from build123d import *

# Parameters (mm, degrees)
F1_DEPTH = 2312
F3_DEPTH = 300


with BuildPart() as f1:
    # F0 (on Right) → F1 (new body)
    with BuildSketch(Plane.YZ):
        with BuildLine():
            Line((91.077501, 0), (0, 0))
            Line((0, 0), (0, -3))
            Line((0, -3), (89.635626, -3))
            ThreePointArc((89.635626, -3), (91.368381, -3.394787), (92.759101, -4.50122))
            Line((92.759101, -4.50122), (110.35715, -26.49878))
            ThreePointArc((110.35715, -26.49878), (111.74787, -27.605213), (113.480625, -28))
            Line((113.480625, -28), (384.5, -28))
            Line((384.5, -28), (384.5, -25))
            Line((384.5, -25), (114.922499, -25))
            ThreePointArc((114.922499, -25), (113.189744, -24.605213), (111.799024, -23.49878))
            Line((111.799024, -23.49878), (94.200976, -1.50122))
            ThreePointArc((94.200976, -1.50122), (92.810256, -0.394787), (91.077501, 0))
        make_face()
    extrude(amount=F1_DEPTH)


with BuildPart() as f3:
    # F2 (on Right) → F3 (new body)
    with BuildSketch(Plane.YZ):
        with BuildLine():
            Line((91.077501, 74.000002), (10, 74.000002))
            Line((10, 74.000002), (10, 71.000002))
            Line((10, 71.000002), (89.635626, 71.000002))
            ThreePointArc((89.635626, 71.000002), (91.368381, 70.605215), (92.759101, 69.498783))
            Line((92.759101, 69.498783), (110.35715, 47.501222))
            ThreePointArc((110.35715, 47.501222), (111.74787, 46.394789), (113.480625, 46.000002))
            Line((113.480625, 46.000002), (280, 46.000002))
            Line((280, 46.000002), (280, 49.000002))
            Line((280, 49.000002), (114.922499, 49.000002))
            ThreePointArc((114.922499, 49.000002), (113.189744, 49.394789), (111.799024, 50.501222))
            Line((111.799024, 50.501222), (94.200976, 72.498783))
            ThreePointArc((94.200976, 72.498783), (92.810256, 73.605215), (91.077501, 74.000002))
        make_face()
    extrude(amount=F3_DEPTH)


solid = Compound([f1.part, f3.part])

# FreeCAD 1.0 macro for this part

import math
import FreeCAD as App
import Part
import Sketcher

V = App.Vector

doc = App.newDocument("Part")
body = doc.addObject("PartDesign::Body", "Body")

sketch1 = body.newObject("Sketcher::SketchObject", "Sketch")
sketch1.AttachmentSupport = (doc.getObject("YZ_Plane"), [""])
sketch1.MapMode = "FlatFace"
sketch1.addGeometry([
    Part.LineSegment(V(91.1, 0, 0), V(0, 0, 0)),
    Part.LineSegment(V(0, 0, 0), V(0, -3, 0)),
    Part.LineSegment(V(0, -3, 0), V(89.6, -3, 0)),
    Part.ArcOfCircle(Part.Circle(V(89.6, -7, 0), V(0, 0, 1), 4), math.radians(39), math.radians(90)),
    Part.LineSegment(V(92.8, -4.5, 0), V(110.4, -26.5, 0)),
    Part.ArcOfCircle(Part.Circle(V(113.5, -24, 0), V(0, 0, 1), 4), math.radians(-141), math.radians(-90)),
    Part.LineSegment(V(113.5, -28, 0), V(384.5, -28, 0)),
    Part.LineSegment(V(384.5, -28, 0), V(384.5, -25, 0)),
    Part.LineSegment(V(384.5, -25, 0), V(114.9, -25, 0)),
    Part.ArcOfCircle(Part.Circle(V(114.9, -21, 0), V(0, 0, 1), 4), math.radians(-141), math.radians(-90)),
    Part.LineSegment(V(111.8, -23.5, 0), V(94.2, -1.5, 0)),
    Part.ArcOfCircle(Part.Circle(V(91.1, -4, 0), V(0, 0, 1), 4), math.radians(39), math.radians(90)),
], False)
sketch1.addConstraint([
    Sketcher.Constraint("Coincident", 0, 2, 1, 1),
    Sketcher.Constraint("Coincident", 1, 2, 2, 1),
    Sketcher.Constraint("Tangent", 2, 2, 3, 2),
    Sketcher.Constraint("Tangent", 3, 1, 4, 1),
    Sketcher.Constraint("Tangent", 4, 2, 5, 1),
    Sketcher.Constraint("Tangent", 5, 2, 6, 1),
    Sketcher.Constraint("Coincident", 6, 2, 7, 1),
    Sketcher.Constraint("Coincident", 7, 2, 8, 1),
    Sketcher.Constraint("Tangent", 8, 2, 9, 2),
    Sketcher.Constraint("Tangent", 9, 1, 10, 1),
    Sketcher.Constraint("Tangent", 10, 2, 11, 1),
    Sketcher.Constraint("Tangent", 11, 2, 0, 1),
    Sketcher.Constraint("Horizontal", 0),
    Sketcher.Constraint("Vertical", 1),
    Sketcher.Constraint("Horizontal", 2),
    Sketcher.Constraint("Horizontal", 6),
    Sketcher.Constraint("Vertical", 7),
    Sketcher.Constraint("Horizontal", 8),
    Sketcher.Constraint("Coincident", 0, 2, -1, 1),
    Sketcher.Constraint("Equal", 3, 5),
    Sketcher.Constraint("Equal", 5, 9),
    Sketcher.Constraint("Equal", 9, 11),
    Sketcher.Constraint("Parallel", 4, 10),
    Sketcher.Constraint("Equal", 1, 7),
    Sketcher.Constraint("DistanceY", 1, 2, 1, 1, 3.0),
    Sketcher.Constraint("DistanceY", 5, 2, -1, 1, 28.0),
    Sketcher.Constraint("DistanceX", -1, 1, 6, 2, 384.5),
    Sketcher.Constraint("DistanceX", 0, 2, 0, 1, 91.077501),
    Sketcher.Constraint("DistanceX", 8, 2, 8, 1, 269.577501),
    Sketcher.Constraint("Radius", 3, 3.999998),
    Sketcher.Constraint("DistanceX", -1, 1, 3, 1, 92.759101),
])
pad1 = body.newObject("PartDesign::Pad", "Pad")
pad1.Profile = sketch1
pad1.Length = 2312
body2 = doc.addObject("PartDesign::Body", "Body001")

sketch2 = body2.newObject("Sketcher::SketchObject", "Sketch001")
sketch2.AttachmentSupport = (doc.getObject("YZ_Plane001"), [""])
sketch2.MapMode = "FlatFace"
sketch2.addGeometry([
    Part.LineSegment(V(91.1, 74, 0), V(10, 74, 0)),
    Part.LineSegment(V(10, 74, 0), V(10, 71, 0)),
    Part.LineSegment(V(10, 71, 0), V(89.6, 71, 0)),
    Part.ArcOfCircle(Part.Circle(V(89.6, 67, 0), V(0, 0, 1), 4), math.radians(39), math.radians(90)),
    Part.LineSegment(V(92.8, 69.5, 0), V(110.4, 47.5, 0)),
    Part.ArcOfCircle(Part.Circle(V(113.5, 50, 0), V(0, 0, 1), 4), math.radians(-141), math.radians(-90)),
    Part.LineSegment(V(113.5, 46, 0), V(280, 46, 0)),
    Part.LineSegment(V(280, 46, 0), V(280, 49, 0)),
    Part.LineSegment(V(280, 49, 0), V(114.9, 49, 0)),
    Part.ArcOfCircle(Part.Circle(V(114.9, 53, 0), V(0, 0, 1), 4), math.radians(-141), math.radians(-90)),
    Part.LineSegment(V(111.8, 50.5, 0), V(94.2, 72.5, 0)),
    Part.ArcOfCircle(Part.Circle(V(91.1, 70, 0), V(0, 0, 1), 4), math.radians(39), math.radians(90)),
], False)
sketch2.addConstraint([
    Sketcher.Constraint("Coincident", 0, 2, 1, 1),
    Sketcher.Constraint("Coincident", 1, 2, 2, 1),
    Sketcher.Constraint("Tangent", 2, 2, 3, 2),
    Sketcher.Constraint("Tangent", 3, 1, 4, 1),
    Sketcher.Constraint("Tangent", 4, 2, 5, 1),
    Sketcher.Constraint("Tangent", 5, 2, 6, 1),
    Sketcher.Constraint("Coincident", 6, 2, 7, 1),
    Sketcher.Constraint("Coincident", 7, 2, 8, 1),
    Sketcher.Constraint("Tangent", 8, 2, 9, 2),
    Sketcher.Constraint("Tangent", 9, 1, 10, 1),
    Sketcher.Constraint("Tangent", 10, 2, 11, 1),
    Sketcher.Constraint("Tangent", 11, 2, 0, 1),
    Sketcher.Constraint("Horizontal", 0),
    Sketcher.Constraint("Vertical", 1),
    Sketcher.Constraint("Horizontal", 2),
    Sketcher.Constraint("Horizontal", 6),
    Sketcher.Constraint("Vertical", 7),
    Sketcher.Constraint("Horizontal", 8),
    Sketcher.Constraint("Equal", 5, 9),
    Sketcher.Constraint("Equal", 3, 11),
    Sketcher.Constraint("Parallel", 4, 10),
    Sketcher.Constraint("Equal", 1, 7),
    Sketcher.Constraint("Radius", 3, 4.000001),
    Sketcher.Constraint("DistanceY", 1, 2, 1, 1, 3.0),
    Sketcher.Constraint("DistanceY", -1, 1, 3, 3, 67.000001),
    Sketcher.Constraint("DistanceY", -1, 1, 5, 3, 50.0),
    Sketcher.Constraint("DistanceX", -1, 1, 0, 2, 10.0),
    Sketcher.Constraint("DistanceX", -1, 1, 6, 2, 280.0),
    Sketcher.Constraint("DistanceY", 5, 2, 3, 3, 20.999999),
    Sketcher.Constraint("DistanceX", 0, 2, 0, 1, 81.077501),
    Sketcher.Constraint("DistanceX", 8, 2, 8, 1, 165.077501),
    Sketcher.Constraint("DistanceX", -1, 1, 3, 1, 92.759101),
])
pad2 = body2.newObject("PartDesign::Pad", "Pad001")
pad2.Profile = sketch2
pad2.Length = 300

doc.recompute()
